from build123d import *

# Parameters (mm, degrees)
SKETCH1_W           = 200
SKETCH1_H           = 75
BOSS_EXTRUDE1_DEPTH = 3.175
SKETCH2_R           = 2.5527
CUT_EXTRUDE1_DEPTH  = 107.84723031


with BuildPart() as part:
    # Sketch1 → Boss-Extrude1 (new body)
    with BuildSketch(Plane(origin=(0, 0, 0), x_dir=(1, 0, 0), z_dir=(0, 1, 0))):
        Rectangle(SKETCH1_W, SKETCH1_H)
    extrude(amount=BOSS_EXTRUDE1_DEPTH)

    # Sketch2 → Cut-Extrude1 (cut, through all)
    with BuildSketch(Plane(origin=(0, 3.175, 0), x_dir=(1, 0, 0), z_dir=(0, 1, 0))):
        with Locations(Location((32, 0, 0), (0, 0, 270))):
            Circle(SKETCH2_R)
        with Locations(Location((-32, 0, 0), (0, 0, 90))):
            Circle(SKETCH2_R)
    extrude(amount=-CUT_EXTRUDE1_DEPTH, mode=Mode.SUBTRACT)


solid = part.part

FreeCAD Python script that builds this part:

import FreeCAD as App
import Part
import Sketcher

V = App.Vector
Q = App.Units.Quantity


def add_polygon(sketch, points):
    """Adds a closed chain of lines whose ends are joined by coincident constraints."""
    first, n = sketch.GeometryCount, len(points)
    for a, b in zip(points, points[1:] + points[:1]):
        sketch.addGeometry(Part.LineSegment(App.Vector(*a, 0), App.Vector(*b, 0)), False)
    for i in range(n):
        sketch.addConstraint(Sketcher.Constraint("Coincident", first + i, 2, first + (i + 1) % n, 1))

doc = App.newDocument("Part")
body = doc.addObject("PartDesign::Body", "Body")

# Sketch on XZ plane
sketch1 = body.newObject("Sketcher::SketchObject", "Sketch")
sketch1.AttachmentSupport = (doc.getObject("XZ_Plane"), [""])
sketch1.MapMode = "FlatFace"
add_polygon(sketch1, [(-100, -38), (-100, 38), (100, 38), (100, -38)])  # lines 0-3
sketch1.addConstraint([
    Sketcher.Constraint("Vertical", 0),
    Sketcher.Constraint("Horizontal", 1),
    Sketcher.Constraint("Vertical", 2),
    Sketcher.Constraint("Horizontal", 3),
    Sketcher.Constraint("Symmetric", 0, 2, 2, 2, -1, 1),
    Sketcher.Constraint("DistanceX", 1, 1, 1, 2, Q("200 mm")),
    Sketcher.Constraint("DistanceY", 0, 1, 0, 2, Q("75 mm")),
])
pad1 = body.newObject("PartDesign::Pad", "Pad")
pad1.Profile = sketch1
pad1.Length = 3.175
pad1.Reversed = True

# Sketch on XZ plane
sketch2 = body.newObject("Sketcher::SketchObject", "Sketch001")
sketch2.AttachmentSupport = (doc.getObject("XZ_Plane"), [""])
sketch2.MapMode = "FlatFace"
sketch2.AttachmentOffset = App.Placement(V(0, 0, -3.175), App.Rotation())
sketch2.addGeometry([
    Part.Circle(V(32, 0, 0), V(0, 0, 1), 2.6),
    Part.Circle(V(-32, 0, 0), V(0, 0, 1), 2.6),
], False)
sketch2.addConstraint([
    Sketcher.Constraint("Equal", 0, 1),
    Sketcher.Constraint("Symmetric", 0, 3, 1, 3, -1, 1),
    Sketcher.Constraint("PointOnObject", 0, 3, -1),
    Sketcher.Constraint("DistanceX", -1, 1, 0, 3, Q("32 mm")),
    Sketcher.Constraint("Diameter", 0, Q("5.1054 mm")),
])
pocket1 = body.newObject("PartDesign::Pocket", "Pocket")
pocket1.Profile = sketch2
pocket1.Type = "ThroughAll"
pocket1.Reversed = True

doc.recompute()
